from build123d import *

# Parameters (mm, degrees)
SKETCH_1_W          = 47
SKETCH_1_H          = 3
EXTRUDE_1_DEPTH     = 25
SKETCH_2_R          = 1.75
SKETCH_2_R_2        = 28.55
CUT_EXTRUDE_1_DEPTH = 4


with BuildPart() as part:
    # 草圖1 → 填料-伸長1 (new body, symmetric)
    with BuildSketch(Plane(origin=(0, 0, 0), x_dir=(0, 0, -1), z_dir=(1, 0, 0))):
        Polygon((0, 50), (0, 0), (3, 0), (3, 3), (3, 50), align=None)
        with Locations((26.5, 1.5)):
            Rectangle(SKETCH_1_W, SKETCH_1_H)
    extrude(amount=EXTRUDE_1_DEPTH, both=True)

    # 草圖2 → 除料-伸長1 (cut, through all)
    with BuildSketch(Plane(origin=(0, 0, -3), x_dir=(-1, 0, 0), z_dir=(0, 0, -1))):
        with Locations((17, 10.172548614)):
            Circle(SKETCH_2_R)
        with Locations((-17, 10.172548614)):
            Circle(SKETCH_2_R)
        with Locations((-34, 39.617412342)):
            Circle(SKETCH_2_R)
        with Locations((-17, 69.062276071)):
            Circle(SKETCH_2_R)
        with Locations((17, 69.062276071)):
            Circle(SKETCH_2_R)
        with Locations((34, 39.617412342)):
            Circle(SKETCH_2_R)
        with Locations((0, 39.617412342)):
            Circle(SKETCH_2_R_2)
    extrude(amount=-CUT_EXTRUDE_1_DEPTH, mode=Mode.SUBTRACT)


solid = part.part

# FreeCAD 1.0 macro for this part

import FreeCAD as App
import Part
import Sketcher

V = App.Vector


def add_polygon(sketch, points):
    """Adds a closed chain of lines whose ends are joined by coincident constraints."""
    first, n = sketch.GeometryCount, len(points)
    for a, b in zip(points, points[1:] + points[:1]):
        sketch.addGeometry(Part.LineSegment(App.Vector(*a, 0), App.Vector(*b, 0)), False)
    for i in range(n):
        sketch.addConstraint(Sketcher.Constraint("Coincident", first + i, 2, first + (i + 1) % n, 1))

doc = App.newDocument("Part")
body = doc.addObject("PartDesign::Body", "Body")

# Sketch on YZ plane
sketch1 = body.newObject("Sketcher::SketchObject", "Sketch")
sketch1.AttachmentSupport = (doc.getObject("YZ_Plane"), [""])
sketch1.MapMode = "FlatFace"
add_polygon(sketch1, [(50, 0), (0, 0), (0, -50), (3, -50), (3, -3), (50, -3)])  # lines 0-5
sketch1.addConstraint(Sketcher.Constraint("Horizontal", 0))
sketch1.addConstraint(Sketcher.Constraint("Vertical", 1))
sketch1.addConstraint(Sketcher.Constraint("Horizontal", 2))
sketch1.addConstraint(Sketcher.Constraint("Vertical", 3))
sketch1.addConstraint(Sketcher.Constraint("Horizontal", 4))
sketch1.addConstraint(Sketcher.Constraint("Vertical", 5))
sketch1.addConstraint(Sketcher.Constraint("Coincident", 0, 2, -1, 1))
sketch1.addConstraint(Sketcher.Constraint("Equal", 0, 1))
sketch1.addConstraint(Sketcher.Constraint("Equal", 4, 3))
sketch1.addConstraint(Sketcher.Constraint("DistanceX", 0, 2, 0, 1, 50.0))
sketch1.addConstraint(Sketcher.Constraint("DistanceX", 2, 1, 2, 2, 3.0))
pad1 = body.newObject("PartDesign::Pad", "Pad")
pad1.Profile = sketch1
pad1.Length = 50
pad1.Midplane = True

# Sketch on XY plane
sketch2 = body.newObject("Sketcher::SketchObject", "Sketch001")
sketch2.AttachmentSupport = (doc.getObject("XY_Plane"), [""])
sketch2.MapMode = "FlatFace"
sketch2.AttachmentOffset = App.Placement(V(0, 0, -3), App.Rotation())
sketch2.addGeometry(Part.Circle(V(-17, 10.2, 0), V(0, 0, 1), 1.8), False)
sketch2.addGeometry(Part.Circle(V(17, 10.2, 0), V(0, 0, 1), 1.8), False)
sketch2.addGeometry(Part.Circle(V(34, 39.6, 0), V(0, 0, 1), 1.8), False)
sketch2.addGeometry(Part.Circle(V(17, 69.1, 0), V(0, 0, 1), 1.8), False)
sketch2.addGeometry(Part.Circle(V(-17, 69.1, 0), V(0, 0, 1), 1.8), False)
sketch2.addGeometry(Part.Circle(V(-34, 39.6, 0), V(0, 0, 1), 1.8), False)
sketch2.addGeometry(Part.Circle(V(0, 39.6, 0), V(0, 0, 1), 28.6), False)
sketch2.addConstraint(Sketcher.Constraint("Equal", 0, 1))
sketch2.addConstraint(Sketcher.Constraint("Equal", 1, 2))
sketch2.addConstraint(Sketcher.Constraint("Equal", 2, 3))
sketch2.addConstraint(Sketcher.Constraint("Equal", 3, 4))
sketch2.addConstraint(Sketcher.Constraint("Equal", 4, 5))
sketch2.addConstraint(Sketcher.Constraint("Symmetric", 0, 3, 1, 3, -2))
sketch2.addConstraint(Sketcher.Constraint("Symmetric", 3, 3, 4, 3, -2))
sketch2.addConstraint(Sketcher.Constraint("Symmetric", 2, 3, 5, 3, -2))
sketch2.addConstraint(Sketcher.Constraint("PointOnObject", 6, 3, -2))
sketch2.addConstraint(Sketcher.Constraint("Horizontal", 5, 3, 6, 3))
sketch2.addConstraint(Sketcher.Constraint("Vertical", 1, 3, 3, 3))
sketch2.addConstraint(Sketcher.Constraint("Diameter", 0, 3.5))
sketch2.addConstraint(Sketcher.Constraint("Diameter", 6, 57.1))
sketch2.addConstraint(Sketcher.Constraint("DistanceX", 0, 3, -1, 1, 17.0))
sketch2.addConstraint(Sketcher.Constraint("DistanceX", -1, 1, 2, 3, 34.0))
sketch2.addConstraint(Sketcher.Constraint("DistanceY", -1, 1, 0, 3, 10.172549))
sketch2.addConstraint(Sketcher.Constraint("DistanceY", -1, 1, 2, 3, 39.617412))
sketch2.addConstraint(Sketcher.Constraint("DistanceY", -1, 1, 3, 3, 69.062276))
pocket1 = body.newObject("PartDesign::Pocket", "Pocket")
pocket1.Profile = sketch2
pocket1.Type = "ThroughAll"
pocket1.Reversed = True

doc.recompute()
